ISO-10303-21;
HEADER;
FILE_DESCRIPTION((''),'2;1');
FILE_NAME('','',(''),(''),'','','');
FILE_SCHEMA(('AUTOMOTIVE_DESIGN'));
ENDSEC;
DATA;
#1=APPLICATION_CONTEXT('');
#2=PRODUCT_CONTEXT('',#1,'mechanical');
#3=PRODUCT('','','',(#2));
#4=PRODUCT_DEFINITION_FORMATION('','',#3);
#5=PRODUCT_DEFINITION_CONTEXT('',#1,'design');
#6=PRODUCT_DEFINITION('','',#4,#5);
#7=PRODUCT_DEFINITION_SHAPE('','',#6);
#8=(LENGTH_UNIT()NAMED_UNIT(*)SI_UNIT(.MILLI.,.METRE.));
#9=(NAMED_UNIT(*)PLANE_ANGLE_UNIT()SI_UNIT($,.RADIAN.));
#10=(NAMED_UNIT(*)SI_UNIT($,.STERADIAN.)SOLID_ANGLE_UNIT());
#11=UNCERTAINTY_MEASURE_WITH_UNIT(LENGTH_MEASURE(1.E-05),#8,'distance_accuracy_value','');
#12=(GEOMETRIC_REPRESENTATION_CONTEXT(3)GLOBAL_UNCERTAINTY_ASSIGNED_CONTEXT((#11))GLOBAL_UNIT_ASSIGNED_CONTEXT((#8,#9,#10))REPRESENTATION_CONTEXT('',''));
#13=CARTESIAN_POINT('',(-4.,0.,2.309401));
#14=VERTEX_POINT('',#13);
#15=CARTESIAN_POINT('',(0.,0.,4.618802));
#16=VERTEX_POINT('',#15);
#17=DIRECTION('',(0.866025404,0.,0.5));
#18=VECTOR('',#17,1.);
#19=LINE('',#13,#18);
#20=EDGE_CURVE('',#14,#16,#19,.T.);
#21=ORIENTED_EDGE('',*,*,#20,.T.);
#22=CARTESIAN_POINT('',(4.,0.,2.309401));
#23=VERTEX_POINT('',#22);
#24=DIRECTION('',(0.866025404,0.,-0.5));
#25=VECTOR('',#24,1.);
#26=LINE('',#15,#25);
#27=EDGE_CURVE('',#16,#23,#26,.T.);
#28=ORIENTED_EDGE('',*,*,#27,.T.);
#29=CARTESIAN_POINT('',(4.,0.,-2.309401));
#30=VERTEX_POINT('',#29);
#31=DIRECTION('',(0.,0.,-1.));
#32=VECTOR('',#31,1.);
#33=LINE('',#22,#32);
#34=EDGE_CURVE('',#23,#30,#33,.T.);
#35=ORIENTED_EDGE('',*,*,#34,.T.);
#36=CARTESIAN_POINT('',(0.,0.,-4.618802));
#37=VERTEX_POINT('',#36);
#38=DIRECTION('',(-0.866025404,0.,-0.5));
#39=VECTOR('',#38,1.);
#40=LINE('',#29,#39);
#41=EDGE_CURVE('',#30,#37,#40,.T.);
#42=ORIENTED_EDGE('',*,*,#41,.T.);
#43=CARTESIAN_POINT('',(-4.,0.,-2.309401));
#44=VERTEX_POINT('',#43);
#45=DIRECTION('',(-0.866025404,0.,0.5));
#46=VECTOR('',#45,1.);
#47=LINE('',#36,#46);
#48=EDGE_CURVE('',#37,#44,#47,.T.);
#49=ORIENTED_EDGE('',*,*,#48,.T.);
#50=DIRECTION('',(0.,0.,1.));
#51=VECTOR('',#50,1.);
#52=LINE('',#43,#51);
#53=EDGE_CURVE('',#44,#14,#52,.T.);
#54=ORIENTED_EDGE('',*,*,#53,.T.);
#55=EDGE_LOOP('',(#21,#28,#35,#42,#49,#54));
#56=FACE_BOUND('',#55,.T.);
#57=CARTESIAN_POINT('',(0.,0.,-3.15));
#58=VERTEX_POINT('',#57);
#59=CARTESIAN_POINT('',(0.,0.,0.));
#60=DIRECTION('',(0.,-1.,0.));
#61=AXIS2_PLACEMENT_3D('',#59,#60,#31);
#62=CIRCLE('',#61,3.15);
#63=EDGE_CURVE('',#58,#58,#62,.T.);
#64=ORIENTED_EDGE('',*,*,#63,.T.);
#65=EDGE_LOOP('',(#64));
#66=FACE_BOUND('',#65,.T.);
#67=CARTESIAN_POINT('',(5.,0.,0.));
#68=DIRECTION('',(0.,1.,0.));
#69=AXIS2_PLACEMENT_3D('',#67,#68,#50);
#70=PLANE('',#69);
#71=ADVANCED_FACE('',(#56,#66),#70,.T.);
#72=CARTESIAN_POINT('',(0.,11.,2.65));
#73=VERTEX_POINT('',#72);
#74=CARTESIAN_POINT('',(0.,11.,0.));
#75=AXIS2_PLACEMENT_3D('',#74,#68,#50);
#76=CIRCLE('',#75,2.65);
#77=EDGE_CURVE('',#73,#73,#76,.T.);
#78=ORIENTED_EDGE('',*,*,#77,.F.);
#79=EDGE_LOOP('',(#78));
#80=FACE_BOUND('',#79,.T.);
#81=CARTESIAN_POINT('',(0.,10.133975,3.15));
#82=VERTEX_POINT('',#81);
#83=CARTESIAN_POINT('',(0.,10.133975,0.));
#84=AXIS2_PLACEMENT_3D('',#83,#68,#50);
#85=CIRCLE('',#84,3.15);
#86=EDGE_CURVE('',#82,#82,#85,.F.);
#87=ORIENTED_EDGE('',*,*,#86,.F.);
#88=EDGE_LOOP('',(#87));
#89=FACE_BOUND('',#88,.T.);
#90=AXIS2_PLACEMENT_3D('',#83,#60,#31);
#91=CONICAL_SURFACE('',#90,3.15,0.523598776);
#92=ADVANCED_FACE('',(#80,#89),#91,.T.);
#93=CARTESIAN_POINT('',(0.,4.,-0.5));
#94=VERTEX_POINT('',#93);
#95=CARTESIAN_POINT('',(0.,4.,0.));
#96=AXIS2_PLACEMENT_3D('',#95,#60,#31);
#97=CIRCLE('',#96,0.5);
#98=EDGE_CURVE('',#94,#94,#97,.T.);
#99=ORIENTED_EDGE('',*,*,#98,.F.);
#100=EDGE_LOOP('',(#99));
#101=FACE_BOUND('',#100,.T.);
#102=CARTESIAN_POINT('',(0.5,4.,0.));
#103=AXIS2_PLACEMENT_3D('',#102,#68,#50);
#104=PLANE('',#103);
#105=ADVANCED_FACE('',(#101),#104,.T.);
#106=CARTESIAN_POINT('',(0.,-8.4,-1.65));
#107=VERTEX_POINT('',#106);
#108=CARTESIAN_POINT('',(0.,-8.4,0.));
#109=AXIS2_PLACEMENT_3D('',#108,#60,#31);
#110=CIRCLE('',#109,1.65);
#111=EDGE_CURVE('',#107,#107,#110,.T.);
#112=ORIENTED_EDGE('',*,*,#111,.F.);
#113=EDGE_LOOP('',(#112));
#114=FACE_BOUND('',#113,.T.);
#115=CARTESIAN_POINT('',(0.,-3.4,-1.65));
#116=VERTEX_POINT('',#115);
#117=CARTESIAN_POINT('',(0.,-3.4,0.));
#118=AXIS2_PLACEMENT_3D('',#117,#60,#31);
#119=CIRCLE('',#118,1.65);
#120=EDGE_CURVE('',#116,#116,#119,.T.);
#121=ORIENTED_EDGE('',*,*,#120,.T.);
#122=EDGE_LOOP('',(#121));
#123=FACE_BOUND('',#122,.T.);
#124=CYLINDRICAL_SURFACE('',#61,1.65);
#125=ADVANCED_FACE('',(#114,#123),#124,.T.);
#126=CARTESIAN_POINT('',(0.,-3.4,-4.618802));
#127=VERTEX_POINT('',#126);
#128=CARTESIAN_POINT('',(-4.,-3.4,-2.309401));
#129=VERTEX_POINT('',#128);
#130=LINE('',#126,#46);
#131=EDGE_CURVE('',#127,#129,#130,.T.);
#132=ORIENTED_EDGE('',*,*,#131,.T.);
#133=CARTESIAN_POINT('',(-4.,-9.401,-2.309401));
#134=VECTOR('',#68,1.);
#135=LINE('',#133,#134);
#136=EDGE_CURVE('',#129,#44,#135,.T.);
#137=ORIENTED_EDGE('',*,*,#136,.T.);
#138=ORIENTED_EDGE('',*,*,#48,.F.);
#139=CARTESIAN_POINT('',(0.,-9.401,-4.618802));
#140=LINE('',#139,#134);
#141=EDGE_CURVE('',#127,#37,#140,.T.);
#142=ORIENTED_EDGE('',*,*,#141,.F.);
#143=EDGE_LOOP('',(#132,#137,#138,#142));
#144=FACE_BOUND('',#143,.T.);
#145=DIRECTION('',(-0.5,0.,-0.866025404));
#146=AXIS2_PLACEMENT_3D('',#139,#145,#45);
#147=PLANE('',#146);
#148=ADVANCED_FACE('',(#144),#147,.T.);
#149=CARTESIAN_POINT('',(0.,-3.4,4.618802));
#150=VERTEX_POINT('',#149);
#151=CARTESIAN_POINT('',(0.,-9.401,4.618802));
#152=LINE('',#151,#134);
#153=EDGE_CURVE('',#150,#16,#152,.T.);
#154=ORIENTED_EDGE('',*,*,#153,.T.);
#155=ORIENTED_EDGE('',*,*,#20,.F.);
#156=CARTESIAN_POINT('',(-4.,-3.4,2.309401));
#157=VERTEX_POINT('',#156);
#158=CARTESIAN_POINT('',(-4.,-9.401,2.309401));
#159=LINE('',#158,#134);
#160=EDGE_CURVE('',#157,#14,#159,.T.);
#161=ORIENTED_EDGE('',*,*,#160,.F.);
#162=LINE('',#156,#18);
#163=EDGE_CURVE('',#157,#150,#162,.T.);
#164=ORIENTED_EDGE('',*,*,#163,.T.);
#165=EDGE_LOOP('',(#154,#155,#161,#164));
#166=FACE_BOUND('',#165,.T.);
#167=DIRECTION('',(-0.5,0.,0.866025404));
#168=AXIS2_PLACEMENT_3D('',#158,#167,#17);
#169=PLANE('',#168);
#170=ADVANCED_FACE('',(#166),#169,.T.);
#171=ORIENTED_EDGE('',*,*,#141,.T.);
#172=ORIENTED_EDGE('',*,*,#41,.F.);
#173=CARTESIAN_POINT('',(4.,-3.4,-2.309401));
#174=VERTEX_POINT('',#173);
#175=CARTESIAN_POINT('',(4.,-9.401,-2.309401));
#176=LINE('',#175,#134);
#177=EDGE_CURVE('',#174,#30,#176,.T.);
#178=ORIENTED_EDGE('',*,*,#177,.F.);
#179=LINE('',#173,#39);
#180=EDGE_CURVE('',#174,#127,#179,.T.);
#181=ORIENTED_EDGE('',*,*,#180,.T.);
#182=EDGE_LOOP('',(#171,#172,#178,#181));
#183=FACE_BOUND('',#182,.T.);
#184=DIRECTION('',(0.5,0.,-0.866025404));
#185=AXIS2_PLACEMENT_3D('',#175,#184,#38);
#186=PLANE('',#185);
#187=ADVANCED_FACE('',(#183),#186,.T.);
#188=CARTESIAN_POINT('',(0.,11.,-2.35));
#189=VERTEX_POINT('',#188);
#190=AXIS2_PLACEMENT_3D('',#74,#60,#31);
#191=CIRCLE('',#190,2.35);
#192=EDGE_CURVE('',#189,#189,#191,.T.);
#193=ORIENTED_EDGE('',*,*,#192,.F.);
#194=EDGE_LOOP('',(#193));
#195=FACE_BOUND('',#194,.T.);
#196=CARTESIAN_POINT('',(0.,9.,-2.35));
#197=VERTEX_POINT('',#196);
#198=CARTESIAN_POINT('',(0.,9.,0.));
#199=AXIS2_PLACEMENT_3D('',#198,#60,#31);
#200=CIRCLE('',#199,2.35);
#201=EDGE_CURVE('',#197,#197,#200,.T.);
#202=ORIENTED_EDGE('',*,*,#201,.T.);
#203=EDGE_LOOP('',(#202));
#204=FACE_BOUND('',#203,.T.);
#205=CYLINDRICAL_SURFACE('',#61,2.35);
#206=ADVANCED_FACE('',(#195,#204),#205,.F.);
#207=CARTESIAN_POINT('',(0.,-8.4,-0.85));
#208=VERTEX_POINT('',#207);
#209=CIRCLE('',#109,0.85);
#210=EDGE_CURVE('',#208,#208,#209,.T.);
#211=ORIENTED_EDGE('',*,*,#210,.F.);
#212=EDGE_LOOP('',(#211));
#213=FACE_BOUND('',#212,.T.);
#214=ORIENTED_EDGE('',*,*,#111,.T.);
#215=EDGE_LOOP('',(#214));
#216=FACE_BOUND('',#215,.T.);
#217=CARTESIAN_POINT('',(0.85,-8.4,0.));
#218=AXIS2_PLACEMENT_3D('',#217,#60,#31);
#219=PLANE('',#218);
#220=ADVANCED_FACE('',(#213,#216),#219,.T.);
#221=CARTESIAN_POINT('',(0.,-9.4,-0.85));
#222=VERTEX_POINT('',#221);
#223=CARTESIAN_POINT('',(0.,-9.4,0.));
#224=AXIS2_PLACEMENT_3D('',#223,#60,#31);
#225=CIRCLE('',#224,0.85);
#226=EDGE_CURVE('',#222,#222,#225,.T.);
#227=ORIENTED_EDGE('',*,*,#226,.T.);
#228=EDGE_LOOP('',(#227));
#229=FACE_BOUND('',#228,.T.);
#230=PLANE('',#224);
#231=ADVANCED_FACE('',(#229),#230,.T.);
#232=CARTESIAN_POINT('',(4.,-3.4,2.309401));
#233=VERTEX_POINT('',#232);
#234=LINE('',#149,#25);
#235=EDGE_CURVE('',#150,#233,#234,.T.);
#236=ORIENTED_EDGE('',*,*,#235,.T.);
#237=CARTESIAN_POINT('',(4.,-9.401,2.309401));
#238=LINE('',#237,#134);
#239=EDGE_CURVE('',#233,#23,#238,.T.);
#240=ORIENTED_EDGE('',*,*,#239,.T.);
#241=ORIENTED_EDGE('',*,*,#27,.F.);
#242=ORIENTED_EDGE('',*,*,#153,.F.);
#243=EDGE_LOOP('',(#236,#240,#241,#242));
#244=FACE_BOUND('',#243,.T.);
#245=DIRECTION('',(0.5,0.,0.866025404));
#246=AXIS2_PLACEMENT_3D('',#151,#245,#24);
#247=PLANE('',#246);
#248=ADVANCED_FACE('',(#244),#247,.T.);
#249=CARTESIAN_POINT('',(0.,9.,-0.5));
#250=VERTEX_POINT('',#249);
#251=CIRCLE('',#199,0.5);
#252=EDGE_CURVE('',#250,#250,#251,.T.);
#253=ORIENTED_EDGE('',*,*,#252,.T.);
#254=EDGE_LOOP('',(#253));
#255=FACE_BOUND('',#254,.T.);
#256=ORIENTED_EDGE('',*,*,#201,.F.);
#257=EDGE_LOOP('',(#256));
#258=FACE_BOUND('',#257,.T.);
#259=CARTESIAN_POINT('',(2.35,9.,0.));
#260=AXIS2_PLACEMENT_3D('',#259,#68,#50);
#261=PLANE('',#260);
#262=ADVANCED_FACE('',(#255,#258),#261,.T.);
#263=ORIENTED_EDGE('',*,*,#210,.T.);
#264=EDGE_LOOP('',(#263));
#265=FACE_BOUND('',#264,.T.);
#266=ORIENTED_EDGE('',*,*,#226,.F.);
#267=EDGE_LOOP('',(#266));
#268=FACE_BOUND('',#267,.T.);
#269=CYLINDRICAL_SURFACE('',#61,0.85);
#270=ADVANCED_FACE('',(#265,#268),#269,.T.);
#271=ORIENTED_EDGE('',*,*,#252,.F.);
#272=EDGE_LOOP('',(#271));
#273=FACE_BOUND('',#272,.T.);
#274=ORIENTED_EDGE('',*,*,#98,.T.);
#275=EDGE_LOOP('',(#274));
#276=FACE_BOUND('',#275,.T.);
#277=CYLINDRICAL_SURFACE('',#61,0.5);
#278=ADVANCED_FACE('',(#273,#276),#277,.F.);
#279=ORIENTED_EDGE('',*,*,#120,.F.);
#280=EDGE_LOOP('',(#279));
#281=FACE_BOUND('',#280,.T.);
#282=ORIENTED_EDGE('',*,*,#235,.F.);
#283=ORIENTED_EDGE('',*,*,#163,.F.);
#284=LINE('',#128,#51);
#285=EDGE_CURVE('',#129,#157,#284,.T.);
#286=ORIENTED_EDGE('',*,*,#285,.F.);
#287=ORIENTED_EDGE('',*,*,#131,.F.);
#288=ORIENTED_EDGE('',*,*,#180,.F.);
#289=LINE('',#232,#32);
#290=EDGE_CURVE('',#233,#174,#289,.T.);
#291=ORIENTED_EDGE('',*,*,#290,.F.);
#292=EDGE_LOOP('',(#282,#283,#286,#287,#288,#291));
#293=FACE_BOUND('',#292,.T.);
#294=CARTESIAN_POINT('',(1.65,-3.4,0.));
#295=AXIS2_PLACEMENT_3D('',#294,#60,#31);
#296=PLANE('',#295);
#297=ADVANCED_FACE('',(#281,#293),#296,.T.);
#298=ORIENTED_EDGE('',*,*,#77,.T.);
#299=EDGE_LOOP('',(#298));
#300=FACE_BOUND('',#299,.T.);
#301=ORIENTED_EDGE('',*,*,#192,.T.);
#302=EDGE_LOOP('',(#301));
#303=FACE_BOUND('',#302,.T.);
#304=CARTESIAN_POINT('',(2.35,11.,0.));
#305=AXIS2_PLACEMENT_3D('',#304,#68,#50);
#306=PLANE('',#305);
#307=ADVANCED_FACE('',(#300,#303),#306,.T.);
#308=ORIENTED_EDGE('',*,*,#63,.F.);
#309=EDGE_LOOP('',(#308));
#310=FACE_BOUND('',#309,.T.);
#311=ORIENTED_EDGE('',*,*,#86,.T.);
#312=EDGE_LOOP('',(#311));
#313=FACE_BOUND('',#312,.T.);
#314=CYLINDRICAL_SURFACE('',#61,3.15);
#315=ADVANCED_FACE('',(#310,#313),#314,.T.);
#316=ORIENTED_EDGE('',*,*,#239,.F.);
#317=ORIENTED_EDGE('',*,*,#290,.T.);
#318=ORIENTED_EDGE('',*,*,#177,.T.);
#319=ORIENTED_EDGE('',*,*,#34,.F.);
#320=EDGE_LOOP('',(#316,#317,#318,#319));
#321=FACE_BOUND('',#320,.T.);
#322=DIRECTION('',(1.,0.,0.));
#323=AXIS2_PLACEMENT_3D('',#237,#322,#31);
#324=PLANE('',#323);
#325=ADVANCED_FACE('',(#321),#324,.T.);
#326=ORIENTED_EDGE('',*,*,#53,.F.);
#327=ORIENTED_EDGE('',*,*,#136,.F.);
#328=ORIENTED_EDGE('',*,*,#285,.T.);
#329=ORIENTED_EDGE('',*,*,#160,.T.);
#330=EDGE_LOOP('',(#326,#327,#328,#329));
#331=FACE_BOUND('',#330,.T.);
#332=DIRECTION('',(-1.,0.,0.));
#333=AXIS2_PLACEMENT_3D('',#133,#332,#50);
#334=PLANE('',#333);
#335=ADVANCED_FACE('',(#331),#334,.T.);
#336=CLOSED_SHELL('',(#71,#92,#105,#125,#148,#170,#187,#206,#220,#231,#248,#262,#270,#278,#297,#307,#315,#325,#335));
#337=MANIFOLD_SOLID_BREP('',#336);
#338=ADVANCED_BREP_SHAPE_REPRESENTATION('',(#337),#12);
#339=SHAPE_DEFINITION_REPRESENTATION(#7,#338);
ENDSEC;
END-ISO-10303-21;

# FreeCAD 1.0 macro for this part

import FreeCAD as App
import Part
import Sketcher
from FreeCAD import Vector
Q = App.Units.Quantity


def edges_at(feature, points):
    """Names of the edges that pass closest to the given points."""
    edges = feature.Shape.Edges
    near = lambda p: min(range(len(edges)), key=lambda i: edges[i].distToShape(Part.Vertex(*p))[0])
    return sorted({f"Edge{near(p) + 1}" for p in points})


def add_polygon(sketch, points):
    """Adds a closed chain of lines whose ends are joined by coincident constraints."""
    first, n = sketch.GeometryCount, len(points)
    for a, b in zip(points, points[1:] + points[:1]):
        sketch.addGeometry(Part.LineSegment(App.Vector(*a, 0), App.Vector(*b, 0)), False)
    for i in range(n):
        sketch.addConstraint(Sketcher.Constraint("Coincident", first + i, 2, first + (i + 1) % n, 1))

doc = App.newDocument("Part")
body = doc.addObject("PartDesign::Body", "Body")

# Sketch on XY plane
sketch1 = body.newObject("Sketcher::SketchObject", "Sketch")
sketch1.AttachmentSupport = (doc.getObject("XY_Plane"), [""])
sketch1.MapMode = "FlatFace"
add_polygon(sketch1, [(2.4, 11), (2.4, 9), (0.5, 9), (0.5, 4), (0, 4), (0, -9.4), (0.8, -9.4), (0.8, -8.4), (1.6, -8.4), (1.6, -3.4), (5, -3.4), (5, 0), (3.1, 0), (3.1, 11)])  # lines 0-13
sketch1.addConstraint([
    Sketcher.Constraint("Vertical", 0),
    Sketcher.Constraint("Horizontal", 1),
    Sketcher.Constraint("Vertical", 2),
    Sketcher.Constraint("Horizontal", 3),
    Sketcher.Constraint("Vertical", 4),
    Sketcher.Constraint("Horizontal", 5),
    Sketcher.Constraint("Vertical", 6),
    Sketcher.Constraint("Horizontal", 7),
    Sketcher.Constraint("Vertical", 8),
    Sketcher.Constraint("Horizontal", 9),
    Sketcher.Constraint("Vertical", 10),
    Sketcher.Constraint("Horizontal", 11),
    Sketcher.Constraint("Vertical", 12),
    Sketcher.Constraint("Horizontal", 13),
    Sketcher.Constraint("PointOnObject", 3, 2, -2),
    Sketcher.Constraint("PointOnObject", 10, 2, -1),
    Sketcher.Constraint("Equal", 1, 11),
    Sketcher.Constraint("Equal", 7, 13),
    Sketcher.Constraint("Equal", 2, 8),
    Sketcher.Constraint("DistanceY", 0, 2, 0, 1, 2.0),
    Sketcher.Constraint("DistanceY", 2, 2, 2, 1, 5.0),
    Sketcher.Constraint("DistanceY", 6, 1, 6, 2, 1.0),
    Sketcher.Constraint("DistanceY", 12, 1, 12, 2, 11.0),
    Sketcher.Constraint("DistanceX", 3, 2, 3, 1, 0.5),
    Sketcher.Constraint("DistanceX", 7, 1, 7, 2, 0.8),
    Sketcher.Constraint("DistanceY", 4, 2, 4, 1, 13.4),
    Sketcher.Constraint("DistanceX", -1, 1, 9, 2, 5.0),
    Sketcher.Constraint("DistanceX", 5, 1, 5, 2, 0.85),
])
revolution = body.newObject("PartDesign::Revolution", "Revolution")
revolution.Profile = sketch1
revolution.ReferenceAxis = (sketch1, ["V_Axis"])
revolution.Angle = 360
doc.recompute()

chamfer = body.newObject("PartDesign::Chamfer", "Chamfer")
chamfer.Base = (revolution, edges_at(revolution, [(0, 11, 3.15)]))
chamfer.ChamferType = "Two distances"
chamfer.Size = 0.5
chamfer.Size2 = 0.866025
chamfer.FlipDirection = True

# Sketch on XZ plane
sketch2 = body.newObject("Sketcher::SketchObject", "Sketch001")
sketch2.AttachmentSupport = (doc.getObject("XZ_Plane"), [""])
sketch2.MapMode = "FlatFace"
sketch2.addGeometry(Part.Circle(Vector(0, 0, 0), Vector(0, 0, 1), 5), False)  # 0
add_polygon(sketch2, [(-4, 2.3), (-4, -2.3), (0, -4.6), (4, -2.3), (4, 2.3), (0, 4.6)])  # lines 1-6
sketch2.addConstraint([
    Sketcher.Constraint("Vertical", 1),
    Sketcher.Constraint("Vertical", 4),
    Sketcher.Constraint("Coincident", 0, 3, -1, 1),
    Sketcher.Constraint("Symmetric", 1, 2, 4, 2, -1, 1),
    Sketcher.Constraint("Symmetric", 2, 2, 5, 2, -1, 1),
    Sketcher.Constraint("PointOnObject", 2, 2, -2),
    Sketcher.Constraint("Parallel", 3, 6),
    Sketcher.Constraint("Horizontal", 1, 2, 3, 2),
    Sketcher.Constraint("Diameter", 0, 10.0),
    Sketcher.Constraint("Angle", 2, Q("-30 deg")),
    Sketcher.Constraint("DistanceX", 1, 2, -1, 1, 4.0),
    Sketcher.Constraint("DistanceY", 1, 2, -1, 1, 2.309401),
])
pocket1 = body.newObject("PartDesign::Pocket", "Pocket")
pocket1.Profile = sketch2
pocket1.Type = "UpToFirst"
pocket1.Reversed = True

doc.recompute()
